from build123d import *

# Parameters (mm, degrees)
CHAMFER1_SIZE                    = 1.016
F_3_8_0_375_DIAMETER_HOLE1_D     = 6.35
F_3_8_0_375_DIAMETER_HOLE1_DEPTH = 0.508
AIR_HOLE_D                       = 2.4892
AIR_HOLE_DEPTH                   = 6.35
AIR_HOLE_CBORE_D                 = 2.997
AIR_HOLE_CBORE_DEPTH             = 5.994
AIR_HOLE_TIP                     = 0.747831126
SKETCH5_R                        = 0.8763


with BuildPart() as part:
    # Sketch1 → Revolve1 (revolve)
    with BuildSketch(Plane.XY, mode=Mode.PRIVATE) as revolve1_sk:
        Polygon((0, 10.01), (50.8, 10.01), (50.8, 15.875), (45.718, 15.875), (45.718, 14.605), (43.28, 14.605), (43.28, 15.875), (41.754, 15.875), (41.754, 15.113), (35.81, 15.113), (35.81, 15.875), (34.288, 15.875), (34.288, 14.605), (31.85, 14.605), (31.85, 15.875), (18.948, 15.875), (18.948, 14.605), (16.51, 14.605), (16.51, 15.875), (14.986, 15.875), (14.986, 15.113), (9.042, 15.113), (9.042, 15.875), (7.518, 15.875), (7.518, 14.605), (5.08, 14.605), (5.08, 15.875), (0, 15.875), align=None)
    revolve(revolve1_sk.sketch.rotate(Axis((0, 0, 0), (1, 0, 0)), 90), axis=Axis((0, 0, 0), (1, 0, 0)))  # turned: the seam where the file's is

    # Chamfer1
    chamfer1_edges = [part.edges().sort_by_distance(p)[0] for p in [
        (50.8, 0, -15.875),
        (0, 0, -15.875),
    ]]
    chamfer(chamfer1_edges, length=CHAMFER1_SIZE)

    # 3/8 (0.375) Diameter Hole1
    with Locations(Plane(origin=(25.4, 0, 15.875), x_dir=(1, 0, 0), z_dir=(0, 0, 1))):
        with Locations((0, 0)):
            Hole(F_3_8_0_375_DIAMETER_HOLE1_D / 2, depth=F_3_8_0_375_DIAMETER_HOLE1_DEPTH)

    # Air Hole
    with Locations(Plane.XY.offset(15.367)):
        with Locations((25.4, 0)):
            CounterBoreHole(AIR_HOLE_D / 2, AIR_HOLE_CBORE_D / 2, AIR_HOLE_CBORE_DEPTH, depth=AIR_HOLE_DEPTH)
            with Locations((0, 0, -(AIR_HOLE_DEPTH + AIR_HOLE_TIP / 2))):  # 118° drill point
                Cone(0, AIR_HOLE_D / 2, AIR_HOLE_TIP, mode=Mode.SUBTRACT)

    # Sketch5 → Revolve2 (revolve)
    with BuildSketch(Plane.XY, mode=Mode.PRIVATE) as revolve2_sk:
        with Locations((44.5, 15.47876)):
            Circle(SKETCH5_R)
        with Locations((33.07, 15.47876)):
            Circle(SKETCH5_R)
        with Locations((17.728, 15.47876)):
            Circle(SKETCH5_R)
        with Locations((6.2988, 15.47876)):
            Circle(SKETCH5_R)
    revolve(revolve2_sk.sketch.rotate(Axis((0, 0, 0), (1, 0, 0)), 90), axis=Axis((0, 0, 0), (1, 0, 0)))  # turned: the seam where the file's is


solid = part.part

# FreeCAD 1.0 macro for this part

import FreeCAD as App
import Part
import Sketcher
Q = App.Units.Quantity


def edges_at(feature, points):
    """Names of the edges that pass closest to the given points."""
    edges = feature.Shape.Edges
    near = lambda p: min(range(len(edges)), key=lambda i: edges[i].distToShape(Part.Vertex(*p))[0])
    return sorted({f"Edge{near(p) + 1}" for p in points})

doc = App.newDocument("Part")
body = doc.addObject("PartDesign::Body", "Body")

sketch1 = body.newObject("Sketcher::SketchObject", "Sketch")
sketch1.AttachmentSupport = (doc.getObject("XY_Plane"), [""])
sketch1.MapMode = "FlatFace"
sketch1.addGeometry([
    Part.LineSegment(App.Vector(0, 10, 0), App.Vector(50.8, 10, 0)),
    Part.LineSegment(App.Vector(50.8, 10, 0), App.Vector(50.8, 15.9, 0)),
    Part.LineSegment(App.Vector(50.8, 15.9, 0), App.Vector(45.7, 15.9, 0)),
    Part.LineSegment(App.Vector(45.7, 15.9, 0), App.Vector(45.7, 14.6, 0)),
    Part.LineSegment(App.Vector(45.7, 14.6, 0), App.Vector(43.3, 14.6, 0)),
    Part.LineSegment(App.Vector(43.3, 14.6, 0), App.Vector(43.3, 15.9, 0)),
    Part.LineSegment(App.Vector(43.3, 15.9, 0), App.Vector(41.8, 15.9, 0)),
    Part.LineSegment(App.Vector(41.8, 15.9, 0), App.Vector(41.8, 15.1, 0)),
    Part.LineSegment(App.Vector(41.8, 15.1, 0), App.Vector(35.8, 15.1, 0)),
    Part.LineSegment(App.Vector(35.8, 15.1, 0), App.Vector(35.8, 15.9, 0)),
    Part.LineSegment(App.Vector(35.8, 15.9, 0), App.Vector(34.3, 15.9, 0)),
    Part.LineSegment(App.Vector(34.3, 15.9, 0), App.Vector(34.3, 14.6, 0)),
    Part.LineSegment(App.Vector(34.3, 14.6, 0), App.Vector(31.9, 14.6, 0)),
    Part.LineSegment(App.Vector(31.9, 14.6, 0), App.Vector(31.9, 15.9, 0)),
    Part.LineSegment(App.Vector(31.9, 15.9, 0), App.Vector(18.9, 15.9, 0)),
    Part.LineSegment(App.Vector(18.9, 15.9, 0), App.Vector(18.9, 14.6, 0)),
    Part.LineSegment(App.Vector(18.9, 14.6, 0), App.Vector(16.5, 14.6, 0)),
    Part.LineSegment(App.Vector(16.5, 14.6, 0), App.Vector(16.5, 15.9, 0)),
    Part.LineSegment(App.Vector(16.5, 15.9, 0), App.Vector(15, 15.9, 0)),
    Part.LineSegment(App.Vector(15, 15.9, 0), App.Vector(15, 15.1, 0)),
    Part.LineSegment(App.Vector(15, 15.1, 0), App.Vector(9, 15.1, 0)),
    Part.LineSegment(App.Vector(9, 15.1, 0), App.Vector(9, 15.9, 0)),
    Part.LineSegment(App.Vector(9, 15.9, 0), App.Vector(7.5, 15.9, 0)),
    Part.LineSegment(App.Vector(7.5, 15.9, 0), App.Vector(7.5, 14.6, 0)),
    Part.LineSegment(App.Vector(7.5, 14.6, 0), App.Vector(5.1, 14.6, 0)),
    Part.LineSegment(App.Vector(5.1, 14.6, 0), App.Vector(5.1, 15.9, 0)),
    Part.LineSegment(App.Vector(5.1, 15.9, 0), App.Vector(0, 15.9, 0)),
    Part.LineSegment(App.Vector(0, 15.9, 0), App.Vector(0, 10, 0)),
], False)
sketch1.addConstraint([
    Sketcher.Constraint("Coincident", 0, 2, 1, 1),
    Sketcher.Constraint("Coincident", 1, 2, 2, 1),
    Sketcher.Constraint("Coincident", 2, 2, 3, 1),
    Sketcher.Constraint("Coincident", 3, 2, 4, 1),
    Sketcher.Constraint("Coincident", 4, 2, 5, 1),
    Sketcher.Constraint("Coincident", 5, 2, 6, 1),
    Sketcher.Constraint("Coincident", 6, 2, 7, 1),
    Sketcher.Constraint("Coincident", 7, 2, 8, 1),
    Sketcher.Constraint("Coincident", 8, 2, 9, 1),
    Sketcher.Constraint("Coincident", 9, 2, 10, 1),
    Sketcher.Constraint("Coincident", 10, 2, 11, 1),
    Sketcher.Constraint("Coincident", 11, 2, 12, 1),
    Sketcher.Constraint("Coincident", 12, 2, 13, 1),
    Sketcher.Constraint("Coincident", 13, 2, 14, 1),
    Sketcher.Constraint("Coincident", 14, 2, 15, 1),
    Sketcher.Constraint("Coincident", 15, 2, 16, 1),
    Sketcher.Constraint("Coincident", 16, 2, 17, 1),
    Sketcher.Constraint("Coincident", 17, 2, 18, 1),
    Sketcher.Constraint("Coincident", 18, 2, 19, 1),
    Sketcher.Constraint("Coincident", 19, 2, 20, 1),
    Sketcher.Constraint("Coincident", 20, 2, 21, 1),
    Sketcher.Constraint("Coincident", 21, 2, 22, 1),
    Sketcher.Constraint("Coincident", 22, 2, 23, 1),
    Sketcher.Constraint("Coincident", 23, 2, 24, 1),
    Sketcher.Constraint("Coincident", 24, 2, 25, 1),
    Sketcher.Constraint("Coincident", 25, 2, 26, 1),
    Sketcher.Constraint("Coincident", 26, 2, 27, 1),
    Sketcher.Constraint("Coincident", 27, 2, 0, 1),
    Sketcher.Constraint("Horizontal", 0),
    Sketcher.Constraint("Vertical", 1),
    Sketcher.Constraint("Horizontal", 2),
    Sketcher.Constraint("Vertical", 3),
    Sketcher.Constraint("Horizontal", 4),
    Sketcher.Constraint("Vertical", 5),
    Sketcher.Constraint("Horizontal", 6),
    Sketcher.Constraint("Vertical", 7),
    Sketcher.Constraint("Horizontal", 8),
    Sketcher.Constraint("Vertical", 9),
    Sketcher.Constraint("Horizontal", 10),
    Sketcher.Constraint("Vertical", 11),
    Sketcher.Constraint("Horizontal", 12),
    Sketcher.Constraint("Vertical", 13),
    Sketcher.Constraint("Horizontal", 14),
    Sketcher.Constraint("Vertical", 15),
    Sketcher.Constraint("Horizontal", 16),
    Sketcher.Constraint("Vertical", 17),
    Sketcher.Constraint("Horizontal", 18),
    Sketcher.Constraint("Vertical", 19),
    Sketcher.Constraint("Horizontal", 20),
    Sketcher.Constraint("Vertical", 21),
    Sketcher.Constraint("Horizontal", 22),
    Sketcher.Constraint("Vertical", 23),
    Sketcher.Constraint("Horizontal", 24),
    Sketcher.Constraint("Vertical", 25),
    Sketcher.Constraint("Horizontal", 26),
    Sketcher.Constraint("Vertical", 27),
    Sketcher.Constraint("PointOnObject", 26, 2, -2),
    Sketcher.Constraint("Horizontal", 2, 2, 5, 2),
    Sketcher.Constraint("Horizontal", 6, 2, 9, 2),
    Sketcher.Constraint("Horizontal", 4, 2, 11, 2),
    Sketcher.Constraint("Horizontal", 10, 2, 13, 2),
    Sketcher.Constraint("Horizontal", 12, 2, 15, 2),
    Sketcher.Constraint("Horizontal", 14, 2, 17, 2),
    Sketcher.Constraint("Horizontal", 8, 2, 19, 2),
    Sketcher.Constraint("Horizontal", 18, 2, 21, 2),
    Sketcher.Constraint("Horizontal", 16, 2, 23, 2),
    Sketcher.Constraint("Horizontal", 22, 2, 25, 2),
    Sketcher.Constraint("Equal", 4, 12),
    Sketcher.Constraint("Equal", 12, 16),
    Sketcher.Constraint("Equal", 8, 20),
    Sketcher.Constraint("Equal", 18, 22),
    Sketcher.Constraint("Equal", 16, 24),
    Sketcher.Constraint("DistanceX", 0, 1, 0, 2, Q("2 in")),
    Sketcher.Constraint("DistanceX", 26, 2, 26, 1, Q("0.2 in")),
    Sketcher.Constraint("DistanceX", 18, 2, 18, 1, Q("0.06 in")),
    Sketcher.Constraint("DistanceY", 3, 2, 3, 1, Q("0.05 in")),
    Sketcher.Constraint("DistanceY", 7, 2, 7, 1, Q("0.03 in")),
    Sketcher.Constraint("DistanceX", -1, 1, 16, 2, Q("0.65 in")),
    Sketcher.Constraint("DistanceY", -1, 1, 1, 2, Q("0.625 in")),
    Sketcher.Constraint("DistanceX", 2, 2, 2, 1, 5.082),
    Sketcher.Constraint("DistanceX", 4, 2, 4, 1, 2.438),
    Sketcher.Constraint("DistanceX", 6, 2, 6, 1, 1.526),
    Sketcher.Constraint("DistanceX", 10, 2, 10, 1, 1.522),
    Sketcher.Constraint("DistanceY", 1, 1, 1, 2, 5.865),
])
revolution = body.newObject("PartDesign::Revolution", "Revolution")
revolution.Profile = sketch1
revolution.ReferenceAxis = (sketch1, ["H_Axis"])
revolution.Angle = 360
doc.recompute()

chamfer = body.newObject("PartDesign::Chamfer", "Chamfer")
chamfer.Base = (revolution, edges_at(revolution, [(50.8, 0, -15.875), (0, 0, -15.875)]))
chamfer.Size = Q("0.04 in")

sketch2 = body.newObject("Sketcher::SketchObject", "Sketch001")
sketch2.AttachmentSupport = (doc.getObject("XY_Plane"), [""])
sketch2.MapMode = "FlatFace"
sketch2.AttachmentOffset = App.Placement(App.Vector(0, 0, 0.625 * 25.4), App.Rotation())
sketch2.addGeometry(Part.Circle(App.Vector(25.4, 0, 0), App.Vector(0, 0, 1), 3.2), False)
sketch2.addConstraint([
    Sketcher.Constraint("PointOnObject", 0, 3, -1),
    Sketcher.Constraint("Diameter", 0, Q("0.25 in")),
    Sketcher.Constraint("DistanceX", -1, 1, 0, 3, Q("1 in")),
])
doc.recompute()
hole = body.newObject("PartDesign::Hole", "Hole")
hole.Profile = sketch2
hole.ThreadType = "None"
hole.Diameter = Q("0.25 in")
hole.DepthType = "Dimension"
hole.Depth = Q("0.02 in")
hole.DrillPoint = "Flat"

sketch3 = body.newObject("Sketcher::SketchObject", "Sketch002")
sketch3.AttachmentSupport = (doc.getObject("XY_Plane"), [""])
sketch3.MapMode = "FlatFace"
sketch3.AttachmentOffset = App.Placement(App.Vector(0, 0, 0.605 * 25.4), App.Rotation())
sketch3.addGeometry(Part.Circle(App.Vector(25.4, 0, 0), App.Vector(0, 0, 1), 1.2), False)
sketch3.addConstraint([
    Sketcher.Constraint("PointOnObject", 0, 3, -1),
    Sketcher.Constraint("Diameter", 0, Q("0.098 in")),
    Sketcher.Constraint("DistanceX", -1, 1, 0, 3, Q("1 in")),
])
doc.recompute()
hole2 = body.newObject("PartDesign::Hole", "Hole001")
hole2.Profile = sketch3
hole2.ThreadType = "None"
hole2.Diameter = Q("0.098 in")
hole2.DepthType = "Dimension"
hole2.Depth = Q("0.25 in")
hole2.DrillPoint = "Angled"
hole2.DrillPointAngle = 118
hole2.HoleCutType = "Counterbore"
hole2.HoleCutDiameter = 2.997
hole2.HoleCutDepth = 5.994

sketch4 = body.newObject("Sketcher::SketchObject", "Sketch003")
sketch4.AttachmentSupport = (doc.getObject("XY_Plane"), [""])
sketch4.MapMode = "FlatFace"
sketch4.addGeometry([
    Part.Circle(App.Vector(44.5, 15.5, 0), App.Vector(0, 0, 1), 0.9),
    Part.Circle(App.Vector(33.1, 15.5, 0), App.Vector(0, 0, 1), 0.9),
    Part.Circle(App.Vector(17.7, 15.5, 0), App.Vector(0, 0, 1), 0.9),
    Part.Circle(App.Vector(6.3, 15.5, 0), App.Vector(0, 0, 1), 0.9),
], False)
sketch4.addConstraint([
    Sketcher.Constraint("Equal", 0, 1),
    Sketcher.Constraint("Equal", 1, 2),
    Sketcher.Constraint("Equal", 2, 3),
    Sketcher.Constraint("Horizontal", 0, 3, 1, 3),
    Sketcher.Constraint("Horizontal", 1, 3, 2, 3),
    Sketcher.Constraint("Horizontal", 2, 3, 3, 3),
    Sketcher.Constraint("Diameter", 0, Q("0.069 in")),
    Sketcher.Constraint("DistanceX", 1, 3, 0, 3, Q("0.45 in")),
    Sketcher.Constraint("DistanceY", -1, 1, 0, 3, Q("0.6094 in")),
    Sketcher.Constraint("DistanceX", -1, 1, 0, 3, 44.5),
    Sketcher.Constraint("DistanceX", -1, 1, 2, 3, 17.728),
    Sketcher.Constraint("DistanceX", -1, 1, 3, 3, 6.2988),
])
revolution2 = body.newObject("PartDesign::Revolution", "Revolution001")
revolution2.Profile = sketch4
revolution2.ReferenceAxis = (sketch4, ["H_Axis"])
revolution2.Angle = 360

doc.recompute()
